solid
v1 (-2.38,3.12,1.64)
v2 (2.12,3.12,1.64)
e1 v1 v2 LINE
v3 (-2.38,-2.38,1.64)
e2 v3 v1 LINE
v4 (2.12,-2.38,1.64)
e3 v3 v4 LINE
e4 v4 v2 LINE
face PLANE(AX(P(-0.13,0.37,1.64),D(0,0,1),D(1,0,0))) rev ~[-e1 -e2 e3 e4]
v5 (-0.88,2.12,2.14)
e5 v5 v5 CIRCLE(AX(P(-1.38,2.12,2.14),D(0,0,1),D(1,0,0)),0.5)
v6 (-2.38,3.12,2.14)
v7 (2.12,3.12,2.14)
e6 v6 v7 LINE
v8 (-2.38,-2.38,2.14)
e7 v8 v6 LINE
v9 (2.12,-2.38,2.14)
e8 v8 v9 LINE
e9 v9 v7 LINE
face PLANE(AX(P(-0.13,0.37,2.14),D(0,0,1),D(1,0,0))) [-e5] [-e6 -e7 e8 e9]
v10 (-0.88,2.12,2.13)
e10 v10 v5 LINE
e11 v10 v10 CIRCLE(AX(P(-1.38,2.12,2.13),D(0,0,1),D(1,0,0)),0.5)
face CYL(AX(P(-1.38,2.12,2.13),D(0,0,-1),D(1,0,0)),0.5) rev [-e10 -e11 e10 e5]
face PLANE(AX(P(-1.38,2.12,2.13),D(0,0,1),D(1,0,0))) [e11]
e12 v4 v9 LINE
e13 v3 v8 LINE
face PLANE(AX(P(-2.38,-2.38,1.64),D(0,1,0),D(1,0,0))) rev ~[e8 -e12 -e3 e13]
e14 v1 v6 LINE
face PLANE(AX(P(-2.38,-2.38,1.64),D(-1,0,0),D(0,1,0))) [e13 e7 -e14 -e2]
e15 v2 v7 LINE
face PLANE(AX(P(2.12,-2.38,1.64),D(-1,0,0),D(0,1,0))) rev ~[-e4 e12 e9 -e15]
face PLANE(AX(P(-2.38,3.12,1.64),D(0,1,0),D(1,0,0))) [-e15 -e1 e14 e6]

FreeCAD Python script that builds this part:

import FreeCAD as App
import Part
import Sketcher

V = App.Vector

doc = App.newDocument("Part")
params = doc.addObject("Spreadsheet::Sheet", "Params")
for row, (alias, value) in enumerate([
    ("sketch1_diameter", "1 mm"),
    ("pad1_length", "0.01 mm"),
    ("sketch2_width", "4.5 mm"),
    ("sketch2_height", "5.5 mm"),
    ("pad2_length", "0.5 mm"),
], start=1):
    params.set(f"A{row}", alias)
    params.set(f"B{row}", "=" + value)
    params.setAlias(f"B{row}", alias)

body = doc.addObject("PartDesign::Body", "Body")

sketch1 = body.newObject("Sketcher::SketchObject", "Sketch")
sketch1.AttachmentSupport = (doc.getObject("XY_Plane"), [""])
sketch1.MapMode = "FlatFace"
sketch1.AttachmentOffset = App.Placement(V(0, 0, 0.49), App.Rotation())
sketch1.addGeometry(Part.Circle(V(1, 4.5, 0), V(0, 0, 1), 0.5), False)
sketch1.addConstraint(Sketcher.Constraint("Diameter", 0, 1.0))
sketch1.addConstraint(Sketcher.Constraint("DistanceX", -1, 1, 0, 3, 1.0))
sketch1.addConstraint(Sketcher.Constraint("DistanceY", -1, 1, 0, 3, 4.5))
sketch1.setExpression("Constraints[0]", "Params.sketch1_diameter")
pad1 = body.newObject("PartDesign::Pad", "Pad")
pad1.Profile = sketch1
pad1.setExpression("Length", "Params.pad1_length")
body2 = doc.addObject("PartDesign::Body", "Body001")

sketch2 = body2.newObject("Sketcher::SketchObject", "Sketch001")
sketch2.AttachmentSupport = (doc.getObject("XY_Plane001"), [""])
sketch2.MapMode = "FlatFace"
sketch2.addGeometry(Part.LineSegment(V(0, 5.5, 0), V(0, 0, 0)), False)
sketch2.addGeometry(Part.LineSegment(V(0, 0, 0), V(4.5, 0, 0)), False)
sketch2.addGeometry(Part.LineSegment(V(4.5, 0, 0), V(4.5, 5.5, 0)), False)
sketch2.addGeometry(Part.LineSegment(V(4.5, 5.5, 0), V(0, 5.5, 0)), False)
sketch2.addConstraint(Sketcher.Constraint("Coincident", 0, 2, 1, 1))
sketch2.addConstraint(Sketcher.Constraint("Coincident", 1, 2, 2, 1))
sketch2.addConstraint(Sketcher.Constraint("Coincident", 2, 2, 3, 1))
sketch2.addConstraint(Sketcher.Constraint("Coincident", 3, 2, 0, 1))
sketch2.addConstraint(Sketcher.Constraint("Vertical", 0))
sketch2.addConstraint(Sketcher.Constraint("Horizontal", 1))
sketch2.addConstraint(Sketcher.Constraint("Vertical", 2))
sketch2.addConstraint(Sketcher.Constraint("Horizontal", 3))
sketch2.addConstraint(Sketcher.Constraint("Coincident", 0, 2, -1, 1))
sketch2.addConstraint(Sketcher.Constraint("DistanceX", 1, 1, 1, 2, 4.5))
sketch2.addConstraint(Sketcher.Constraint("DistanceY", 0, 2, 0, 1, 5.5))
sketch2.setExpression("Constraints[9]", "Params.sketch2_width")
sketch2.setExpression("Constraints[10]", "Params.sketch2_height")
pad2 = body2.newObject("PartDesign::Pad", "Pad001")
pad2.Profile = sketch2
pad2.setExpression("Length", "Params.pad2_length")
doc.recompute()

boolean = body2.newObject("PartDesign::Boolean", "Boolean")
boolean.Type = "Cut"
boolean.addObjects([body])
body3 = doc.addObject("PartDesign::Body", "Body002")
doc.recompute()

body2.Placement = App.Placement(V(-2.38, -2.38, 1.64), App.Rotation(V(0, 0, 1), 0))
boolean2 = body3.newObject("PartDesign::Boolean", "Boolean001")
boolean2.Type = "Fuse"
boolean2.addObjects([body2])

doc.recompute()
